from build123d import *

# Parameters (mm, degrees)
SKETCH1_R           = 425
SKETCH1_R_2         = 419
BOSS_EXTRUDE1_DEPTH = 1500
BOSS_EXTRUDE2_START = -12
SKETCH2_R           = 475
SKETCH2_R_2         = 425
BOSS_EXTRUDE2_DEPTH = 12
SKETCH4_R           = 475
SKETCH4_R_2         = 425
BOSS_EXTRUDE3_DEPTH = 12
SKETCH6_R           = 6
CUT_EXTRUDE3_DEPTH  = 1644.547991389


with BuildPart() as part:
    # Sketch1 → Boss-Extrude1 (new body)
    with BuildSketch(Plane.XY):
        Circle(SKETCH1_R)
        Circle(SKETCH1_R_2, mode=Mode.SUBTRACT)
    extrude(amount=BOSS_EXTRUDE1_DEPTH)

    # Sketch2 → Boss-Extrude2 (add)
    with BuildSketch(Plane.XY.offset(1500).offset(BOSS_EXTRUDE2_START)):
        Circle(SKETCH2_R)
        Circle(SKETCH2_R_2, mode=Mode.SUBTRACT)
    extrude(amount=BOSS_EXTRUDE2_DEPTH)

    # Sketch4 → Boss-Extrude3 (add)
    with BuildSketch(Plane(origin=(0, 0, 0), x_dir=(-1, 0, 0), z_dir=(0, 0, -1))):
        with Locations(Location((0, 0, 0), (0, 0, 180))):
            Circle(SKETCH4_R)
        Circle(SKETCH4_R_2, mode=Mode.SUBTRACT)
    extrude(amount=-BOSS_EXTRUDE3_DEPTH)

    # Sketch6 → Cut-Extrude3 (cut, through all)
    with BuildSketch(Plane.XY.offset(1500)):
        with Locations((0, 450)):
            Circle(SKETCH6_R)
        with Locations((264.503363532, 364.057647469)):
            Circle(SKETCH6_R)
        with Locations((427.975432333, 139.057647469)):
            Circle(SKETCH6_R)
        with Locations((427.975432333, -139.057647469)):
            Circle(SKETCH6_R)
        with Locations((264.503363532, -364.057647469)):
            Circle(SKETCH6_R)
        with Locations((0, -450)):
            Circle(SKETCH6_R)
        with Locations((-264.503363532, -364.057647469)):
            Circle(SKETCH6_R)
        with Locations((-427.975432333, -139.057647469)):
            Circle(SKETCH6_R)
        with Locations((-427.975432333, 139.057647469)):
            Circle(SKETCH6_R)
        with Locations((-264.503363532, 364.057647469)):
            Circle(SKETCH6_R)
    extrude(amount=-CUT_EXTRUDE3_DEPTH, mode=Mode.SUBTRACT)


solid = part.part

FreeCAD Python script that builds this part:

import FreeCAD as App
import Part
import Sketcher
from FreeCAD import Vector

doc = App.newDocument("Part")
body = doc.addObject("PartDesign::Body", "Body")

sketch1 = doc.addObject("Sketcher::SketchObject", "Sketch")
body.addObject(sketch1)
sketch1.AttachmentSupport = (doc.XY_Plane, [""])
sketch1.MapMode = "FlatFace"
sketch1.addGeometry(Part.Circle(Vector(0, 0, 0), Vector(0, 0, 1), 425), False)
sketch1.addGeometry(Part.Circle(Vector(0, 0, 0), Vector(0, 0, 1), 419), False)
sketch1.addConstraint(Sketcher.Constraint("Coincident", 0, 3, -1, 1))
sketch1.addConstraint(Sketcher.Constraint("Coincident", 1, 3, -1, 1))
sketch1.addConstraint(Sketcher.Constraint("Diameter", 0, 850.0))
sketch1.addConstraint(Sketcher.Constraint("Diameter", 1, 838.0))
pad1 = doc.addObject("PartDesign::Pad", "Pad")
body.addObject(pad1)
pad1.Profile = sketch1
pad1.Length = 1500

sketch2 = doc.addObject("Sketcher::SketchObject", "Sketch001")
body.addObject(sketch2)
sketch2.AttachmentSupport = (doc.XY_Plane, [""])
sketch2.MapMode = "FlatFace"
sketch2.AttachmentOffset = App.Placement(Vector(0, 0, 1488), App.Rotation())
sketch2.addGeometry(Part.Circle(Vector(0, 0, 0), Vector(0, 0, 1), 475), False)
sketch2.addGeometry(Part.Circle(Vector(0, 0, 0), Vector(0, 0, 1), 425), False)
sketch2.addConstraint(Sketcher.Constraint("Coincident", 0, 3, -1, 1))
sketch2.addConstraint(Sketcher.Constraint("Coincident", 1, 3, -1, 1))
sketch2.addConstraint(Sketcher.Constraint("Diameter", 0, 950.0))
sketch2.addConstraint(Sketcher.Constraint("Diameter", 1, 850.0))
pad2 = doc.addObject("PartDesign::Pad", "Pad001")
body.addObject(pad2)
pad2.Profile = sketch2
pad2.Length = 12

sketch3 = doc.addObject("Sketcher::SketchObject", "Sketch002")
body.addObject(sketch3)
sketch3.AttachmentSupport = (doc.XY_Plane, [""])
sketch3.MapMode = "FlatFace"
sketch3.addGeometry(Part.Circle(Vector(0, 0, 0), Vector(0, 0, 1), 475), False)
sketch3.addGeometry(Part.Circle(Vector(0, 0, 0), Vector(0, 0, 1), 425), False)
sketch3.addConstraint(Sketcher.Constraint("Coincident", 0, 3, -1, 1))
sketch3.addConstraint(Sketcher.Constraint("Coincident", 1, 3, -1, 1))
sketch3.addConstraint(Sketcher.Constraint("Diameter", 0, 950.0))
sketch3.addConstraint(Sketcher.Constraint("Diameter", 1, 850.0))
pad3 = doc.addObject("PartDesign::Pad", "Pad002")
body.addObject(pad3)
pad3.Profile = sketch3
pad3.Length = 12

sketch4 = doc.addObject("Sketcher::SketchObject", "Sketch003")
body.addObject(sketch4)
sketch4.AttachmentSupport = (doc.XY_Plane, [""])
sketch4.MapMode = "FlatFace"
sketch4.AttachmentOffset = App.Placement(Vector(0, 0, 1500), App.Rotation())
sketch4.addGeometry(Part.Circle(Vector(0, 450, 0), Vector(0, 0, 1), 6), False)
sketch4.addGeometry(Part.Circle(Vector(264.503364, 364.057647, 0), Vector(0, 0, 1), 6), False)
sketch4.addGeometry(Part.Circle(Vector(427.975432, 139.057647, 0), Vector(0, 0, 1), 6), False)
sketch4.addGeometry(Part.Circle(Vector(427.975432, -139.057647, 0), Vector(0, 0, 1), 6), False)
sketch4.addGeometry(Part.Circle(Vector(264.503364, -364.057647, 0), Vector(0, 0, 1), 6), False)
sketch4.addGeometry(Part.Circle(Vector(0, -450, 0), Vector(0, 0, 1), 6), False)
sketch4.addGeometry(Part.Circle(Vector(-264.503364, -364.057647, 0), Vector(0, 0, 1), 6), False)
sketch4.addGeometry(Part.Circle(Vector(-427.975432, -139.057647, 0), Vector(0, 0, 1), 6), False)
sketch4.addGeometry(Part.Circle(Vector(-427.975432, 139.057647, 0), Vector(0, 0, 1), 6), False)
sketch4.addGeometry(Part.Circle(Vector(-264.503364, 364.057647, 0), Vector(0, 0, 1), 6), False)
sketch4.addConstraint(Sketcher.Constraint("Equal", 0, 1))
sketch4.addConstraint(Sketcher.Constraint("Equal", 1, 2))
sketch4.addConstraint(Sketcher.Constraint("Equal", 2, 3))
sketch4.addConstraint(Sketcher.Constraint("Equal", 3, 4))
sketch4.addConstraint(Sketcher.Constraint("Equal", 4, 5))
sketch4.addConstraint(Sketcher.Constraint("Equal", 5, 6))
sketch4.addConstraint(Sketcher.Constraint("Equal", 6, 7))
sketch4.addConstraint(Sketcher.Constraint("Equal", 7, 8))
sketch4.addConstraint(Sketcher.Constraint("Equal", 8, 9))
sketch4.addConstraint(Sketcher.Constraint("Symmetric", 0, 3, 5, 3, -1, 1))
sketch4.addConstraint(Sketcher.Constraint("Symmetric", 1, 3, 6, 3, -1, 1))
sketch4.addConstraint(Sketcher.Constraint("Symmetric", 2, 3, 7, 3, -1, 1))
sketch4.addConstraint(Sketcher.Constraint("Symmetric", 3, 3, 8, 3, -1, 1))
sketch4.addConstraint(Sketcher.Constraint("Symmetric", 4, 3, 9, 3, -1, 1))
sketch4.addConstraint(Sketcher.Constraint("Symmetric", 4, 3, 6, 3, -2))
sketch4.addConstraint(Sketcher.Constraint("Symmetric", 3, 3, 7, 3, -2))
sketch4.addConstraint(Sketcher.Constraint("PointOnObject", 0, 3, -2))
sketch4.addConstraint(Sketcher.Constraint("Diameter", 0, 12.0))
sketch4.addConstraint(Sketcher.Constraint("DistanceY", -1, 1, 0, 3, 450.0))
sketch4.addConstraint(Sketcher.Constraint("DistanceY", 2, 3, 1, 3, 225.0))
sketch4.addConstraint(Sketcher.Constraint("DistanceX", 1, 3, 2, 3, 163.472069))
sketch4.addConstraint(Sketcher.Constraint("DistanceX", -1, 1, 1, 3, 264.503364))
sketch4.addConstraint(Sketcher.Constraint("DistanceY", -1, 1, 1, 3, 364.057647))
pocket1 = doc.addObject("PartDesign::Pocket", "Pocket")
body.addObject(pocket1)
pocket1.Profile = sketch4
pocket1.Type = "ThroughAll"

doc.recompute()
